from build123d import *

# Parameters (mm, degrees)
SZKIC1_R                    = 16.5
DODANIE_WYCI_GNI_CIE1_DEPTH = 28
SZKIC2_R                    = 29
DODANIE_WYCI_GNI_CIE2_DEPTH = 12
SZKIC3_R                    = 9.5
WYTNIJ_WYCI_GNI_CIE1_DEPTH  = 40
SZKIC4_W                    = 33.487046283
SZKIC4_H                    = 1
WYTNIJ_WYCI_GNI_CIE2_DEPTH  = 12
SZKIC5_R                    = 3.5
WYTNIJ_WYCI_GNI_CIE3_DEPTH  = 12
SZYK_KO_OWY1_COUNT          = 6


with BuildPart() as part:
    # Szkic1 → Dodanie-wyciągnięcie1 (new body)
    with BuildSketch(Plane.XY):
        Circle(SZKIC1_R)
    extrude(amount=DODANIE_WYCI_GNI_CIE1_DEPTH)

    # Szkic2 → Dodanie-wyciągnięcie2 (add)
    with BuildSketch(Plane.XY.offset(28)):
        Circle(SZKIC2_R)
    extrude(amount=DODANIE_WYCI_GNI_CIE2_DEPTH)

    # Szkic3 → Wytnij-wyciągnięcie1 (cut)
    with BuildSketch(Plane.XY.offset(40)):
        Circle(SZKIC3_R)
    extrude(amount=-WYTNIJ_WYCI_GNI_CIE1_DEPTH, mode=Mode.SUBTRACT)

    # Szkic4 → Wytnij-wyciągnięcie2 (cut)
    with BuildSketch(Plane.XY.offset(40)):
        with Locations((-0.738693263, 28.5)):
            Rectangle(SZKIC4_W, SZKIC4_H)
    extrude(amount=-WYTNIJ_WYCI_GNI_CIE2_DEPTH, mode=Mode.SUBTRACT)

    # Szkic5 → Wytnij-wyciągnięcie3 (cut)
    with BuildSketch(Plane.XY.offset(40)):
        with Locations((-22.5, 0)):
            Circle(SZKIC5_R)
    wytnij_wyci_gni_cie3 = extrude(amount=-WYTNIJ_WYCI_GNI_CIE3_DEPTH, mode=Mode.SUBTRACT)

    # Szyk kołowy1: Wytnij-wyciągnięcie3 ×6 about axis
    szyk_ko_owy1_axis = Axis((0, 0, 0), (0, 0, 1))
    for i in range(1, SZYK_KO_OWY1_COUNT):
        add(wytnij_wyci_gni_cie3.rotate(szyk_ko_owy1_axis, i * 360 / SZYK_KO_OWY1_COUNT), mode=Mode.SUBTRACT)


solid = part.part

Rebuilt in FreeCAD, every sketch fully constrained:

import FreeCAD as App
import Part
import Sketcher


def add_polygon(sketch, points):
    """Adds a closed chain of lines whose ends are joined by coincident constraints."""
    first, n = sketch.GeometryCount, len(points)
    for a, b in zip(points, points[1:] + points[:1]):
        sketch.addGeometry(Part.LineSegment(App.Vector(*a, 0), App.Vector(*b, 0)), False)
    for i in range(n):
        sketch.addConstraint(Sketcher.Constraint("Coincident", first + i, 2, first + (i + 1) % n, 1))

doc = App.newDocument("Part")
body = doc.addObject("PartDesign::Body", "Body")

# Sketch on XY plane
sketch1 = body.newObject("Sketcher::SketchObject", "Sketch")
sketch1.AttachmentSupport = (doc.getObject("XY_Plane"), [""])
sketch1.MapMode = "FlatFace"
sketch1.addGeometry(Part.Circle(App.Vector(0, 0, 0), App.Vector(0, 0, 1), 16.5), False)
sketch1.addConstraint([
    Sketcher.Constraint("Coincident", 0, 3, -1, 1),
    Sketcher.Constraint("Diameter", 0, 33.0),
])
pad1 = body.newObject("PartDesign::Pad", "Pad")
pad1.Profile = sketch1
pad1.Length = 28

# Sketch on XY plane
sketch2 = body.newObject("Sketcher::SketchObject", "Sketch001")
sketch2.AttachmentSupport = (doc.getObject("XY_Plane"), [""])
sketch2.MapMode = "FlatFace"
sketch2.AttachmentOffset = App.Placement(App.Vector(0, 0, 28), App.Rotation())
sketch2.addGeometry(Part.Circle(App.Vector(0, 0, 0), App.Vector(0, 0, 1), 29), False)
sketch2.addConstraint([
    Sketcher.Constraint("Coincident", 0, 3, -1, 1),
    Sketcher.Constraint("Diameter", 0, 58.0),
])
pad2 = body.newObject("PartDesign::Pad", "Pad001")
pad2.Profile = sketch2
pad2.Length = 12

# Sketch on XY plane
sketch3 = body.newObject("Sketcher::SketchObject", "Sketch002")
sketch3.AttachmentSupport = (doc.getObject("XY_Plane"), [""])
sketch3.MapMode = "FlatFace"
sketch3.AttachmentOffset = App.Placement(App.Vector(0, 0, 40), App.Rotation())
sketch3.addGeometry(Part.Circle(App.Vector(0, 0, 0), App.Vector(0, 0, 1), 9.5), False)
sketch3.addConstraint([
    Sketcher.Constraint("Coincident", 0, 3, -1, 1),
    Sketcher.Constraint("Diameter", 0, 19.0),
])
pocket1 = body.newObject("PartDesign::Pocket", "Pocket")
pocket1.Profile = sketch3
pocket1.Length = 40

# Sketch on XY plane
sketch4 = body.newObject("Sketcher::SketchObject", "Sketch003")
sketch4.AttachmentSupport = (doc.getObject("XY_Plane"), [""])
sketch4.MapMode = "FlatFace"
sketch4.AttachmentOffset = App.Placement(App.Vector(0, 0, 40), App.Rotation())
add_polygon(sketch4, [(-17.482216, 29), (-17.482216, 28), (16.00483, 28), (16.00483, 29)])  # lines 0-3
sketch4.addConstraint([
    Sketcher.Constraint("Vertical", 0),
    Sketcher.Constraint("Horizontal", 1),
    Sketcher.Constraint("Vertical", 2),
    Sketcher.Constraint("Horizontal", 3),
    Sketcher.Constraint("DistanceY", 0, 2, 0, 1, 1.0),
    Sketcher.Constraint("DistanceY", -1, 1, 0, 2, 28.0),
    Sketcher.Constraint("DistanceX", 1, 1, 1, 2, 33.487046),
    Sketcher.Constraint("DistanceX", -1, 1, 1, 2, 16.00483),
])
pocket2 = body.newObject("PartDesign::Pocket", "Pocket001")
pocket2.Profile = sketch4
pocket2.Length = 12

# Sketch on XY plane
sketch5 = body.newObject("Sketcher::SketchObject", "Sketch004")
sketch5.AttachmentSupport = (doc.getObject("XY_Plane"), [""])
sketch5.MapMode = "FlatFace"
sketch5.AttachmentOffset = App.Placement(App.Vector(0, 0, 40), App.Rotation())
sketch5.addGeometry(Part.Circle(App.Vector(-22.5, 0, 0), App.Vector(0, 0, 1), 3.5), False)
sketch5.addConstraint([
    Sketcher.Constraint("PointOnObject", 0, 3, -1),
    Sketcher.Constraint("Diameter", 0, 7.0),
    Sketcher.Constraint("DistanceX", 0, 3, -1, 1, 22.5),
])
pocket3 = body.newObject("PartDesign::Pocket", "Pocket002")
pocket3.Profile = sketch5
pocket3.Length = 12
doc.recompute()

polarpattern = body.newObject("PartDesign::PolarPattern", "PolarPattern")
polarpattern.Originals = [pocket3]
polarpattern.Axis = (doc.getObject("Z_Axis"), [""])
polarpattern.Angle = 360
polarpattern.Occurrences = 6
body.Tip = polarpattern

doc.recompute()
